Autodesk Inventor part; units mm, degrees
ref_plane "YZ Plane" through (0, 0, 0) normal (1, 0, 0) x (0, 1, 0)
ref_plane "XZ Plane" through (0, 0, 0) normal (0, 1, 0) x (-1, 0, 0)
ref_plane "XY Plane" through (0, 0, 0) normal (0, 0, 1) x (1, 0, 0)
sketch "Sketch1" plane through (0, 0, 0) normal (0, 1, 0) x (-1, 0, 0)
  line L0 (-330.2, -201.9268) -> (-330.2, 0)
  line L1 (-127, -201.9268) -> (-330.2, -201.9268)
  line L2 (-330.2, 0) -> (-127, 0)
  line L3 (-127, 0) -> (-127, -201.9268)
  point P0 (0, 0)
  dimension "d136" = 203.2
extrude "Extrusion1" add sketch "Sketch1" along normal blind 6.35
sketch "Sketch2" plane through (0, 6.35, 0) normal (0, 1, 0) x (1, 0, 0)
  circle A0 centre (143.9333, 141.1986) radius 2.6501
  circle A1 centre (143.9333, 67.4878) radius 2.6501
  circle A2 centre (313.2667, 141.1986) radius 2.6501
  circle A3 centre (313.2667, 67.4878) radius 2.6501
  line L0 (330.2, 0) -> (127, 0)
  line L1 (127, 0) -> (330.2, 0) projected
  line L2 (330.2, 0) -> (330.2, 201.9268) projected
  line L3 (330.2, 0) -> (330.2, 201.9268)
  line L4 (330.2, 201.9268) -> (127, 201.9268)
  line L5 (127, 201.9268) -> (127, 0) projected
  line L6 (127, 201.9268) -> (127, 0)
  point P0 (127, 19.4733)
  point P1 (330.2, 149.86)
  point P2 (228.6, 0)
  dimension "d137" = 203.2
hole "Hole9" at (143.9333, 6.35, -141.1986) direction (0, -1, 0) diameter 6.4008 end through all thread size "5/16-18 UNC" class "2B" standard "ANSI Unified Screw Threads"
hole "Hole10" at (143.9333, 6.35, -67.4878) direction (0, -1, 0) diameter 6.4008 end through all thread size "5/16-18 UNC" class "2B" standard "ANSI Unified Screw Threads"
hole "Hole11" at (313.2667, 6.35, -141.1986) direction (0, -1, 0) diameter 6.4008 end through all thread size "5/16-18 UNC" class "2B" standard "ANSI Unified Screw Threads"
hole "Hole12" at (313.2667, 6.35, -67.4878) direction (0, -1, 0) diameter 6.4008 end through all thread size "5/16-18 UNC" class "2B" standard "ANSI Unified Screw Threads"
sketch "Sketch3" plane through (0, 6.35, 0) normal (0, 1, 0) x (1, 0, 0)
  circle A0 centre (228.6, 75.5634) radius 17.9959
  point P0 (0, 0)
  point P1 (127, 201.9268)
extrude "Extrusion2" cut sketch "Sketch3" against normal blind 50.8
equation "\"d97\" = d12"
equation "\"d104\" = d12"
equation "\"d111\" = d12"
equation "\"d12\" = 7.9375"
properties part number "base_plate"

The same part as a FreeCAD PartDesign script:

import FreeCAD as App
import Part
import Sketcher
Q = App.Units.Quantity

doc = App.newDocument("Part")
params = doc.addObject("Spreadsheet::Sheet", "Params")
for row, (alias, value) in enumerate([
    ("sketch1_width", "8 in"),
    ("pad1_length", "0.25 in"),
    ("sketch2_diameter", "0.252 in"),
    ("hole_diameter", "0.252 in"),
    ("sketch3_diameter", "0.252 in"),
    ("hole2_diameter", "0.252 in"),
    ("sketch4_diameter", "0.252 in"),
    ("hole3_diameter", "0.252 in"),
    ("sketch5_diameter", "0.252 in"),
    ("hole4_diameter", "0.252 in"),
    ("sketch6_diameter", "1.417 in"),
    ("pocket1_length", "2 in"),
], start=1):
    params.set(f"A{row}", alias)
    params.set(f"B{row}", "=" + value)
    params.setAlias(f"B{row}", alias)

body = doc.addObject("PartDesign::Body", "Body")

# Sketch on XZ plane
sketch1 = body.newObject("Sketcher::SketchObject", "Sketch")
sketch1.AttachmentSupport = (doc.getObject("XZ_Plane"), [""])
sketch1.MapMode = "FlatFace"
sketch1.addGeometry([
    Part.LineSegment(App.Vector(330, 0, 0), App.Vector(330, -202, 0)),
    Part.LineSegment(App.Vector(330, -202, 0), App.Vector(127, -202, 0)),
    Part.LineSegment(App.Vector(127, -202, 0), App.Vector(127, 0, 0)),
    Part.LineSegment(App.Vector(127, 0, 0), App.Vector(330, 0, 0)),
], False)
sketch1.addConstraint([
    Sketcher.Constraint("Coincident", 0, 2, 1, 1),
    Sketcher.Constraint("Coincident", 1, 2, 2, 1),
    Sketcher.Constraint("Coincident", 2, 2, 3, 1),
    Sketcher.Constraint("Coincident", 3, 2, 0, 1),
    Sketcher.Constraint("Vertical", 0),
    Sketcher.Constraint("Horizontal", 1),
    Sketcher.Constraint("Vertical", 2),
    Sketcher.Constraint("Horizontal", 3),
    Sketcher.Constraint("PointOnObject", 2, 2, -1),
    Sketcher.Constraint("DistanceX", 1, 2, 1, 1, Q("8 in")),
    Sketcher.Constraint("DistanceX", -1, 1, 0, 2, Q("13 in")),
    Sketcher.Constraint("DistanceY", 0, 2, 0, 1, 201.9268),
])
sketch1.setExpression("Constraints[9]", "Params.sketch1_width")
pad1 = body.newObject("PartDesign::Pad", "Pad")
pad1.Profile = sketch1
pad1.setExpression("Length", "Params.pad1_length")
pad1.Reversed = True

# Sketch on XZ plane
sketch2 = body.newObject("Sketcher::SketchObject", "Sketch001")
sketch2.AttachmentSupport = (doc.getObject("XZ_Plane"), [""])
sketch2.MapMode = "FlatFace"
sketch2.AttachmentOffset = App.Placement(App.Vector(0, 0, -0.25 * 25.4), App.Rotation())
sketch2.addGeometry(Part.Circle(App.Vector(143.9, -141.2, 0), App.Vector(0, 0, 1), 3.2), False)
sketch2.addConstraint([
    Sketcher.Constraint("Diameter", 0, Q("0.252 in")),
    Sketcher.Constraint("DistanceY", 0, 3, -1, 1, Q("5.559 in")),
    Sketcher.Constraint("DistanceX", -1, 1, 0, 3, 143.9333),
])
sketch2.setExpression("Constraints[0]", "Params.sketch2_diameter")
doc.recompute()
hole = body.newObject("PartDesign::Hole", "Hole")
hole.Profile = sketch2
hole.ThreadType = "None"
hole.setExpression("Diameter", "Params.hole_diameter")
hole.DepthType = "ThroughAll"
hole.Reversed = True

# Sketch on XZ plane
sketch3 = body.newObject("Sketcher::SketchObject", "Sketch002")
sketch3.AttachmentSupport = (doc.getObject("XZ_Plane"), [""])
sketch3.MapMode = "FlatFace"
sketch3.AttachmentOffset = App.Placement(App.Vector(0, 0, -0.25 * 25.4), App.Rotation())
sketch3.addGeometry(Part.Circle(App.Vector(143.9, -67.5, 0), App.Vector(0, 0, 1), 3.2), False)
sketch3.addConstraint([
    Sketcher.Constraint("Diameter", 0, Q("0.252 in")),
    Sketcher.Constraint("DistanceY", 0, 3, -1, 1, Q("2.657 in")),
    Sketcher.Constraint("DistanceX", -1, 1, 0, 3, 143.9333),
])
sketch3.setExpression("Constraints[0]", "Params.sketch3_diameter")
doc.recompute()
hole2 = body.newObject("PartDesign::Hole", "Hole001")
hole2.Profile = sketch3
hole2.ThreadType = "None"
hole2.setExpression("Diameter", "Params.hole2_diameter")
hole2.DepthType = "ThroughAll"
hole2.Reversed = True

# Sketch on XZ plane
sketch4 = body.newObject("Sketcher::SketchObject", "Sketch003")
sketch4.AttachmentSupport = (doc.getObject("XZ_Plane"), [""])
sketch4.MapMode = "FlatFace"
sketch4.AttachmentOffset = App.Placement(App.Vector(0, 0, -0.25 * 25.4), App.Rotation())
sketch4.addGeometry(Part.Circle(App.Vector(313.3, -141.2, 0), App.Vector(0, 0, 1), 3.2), False)
sketch4.addConstraint([
    Sketcher.Constraint("Diameter", 0, Q("0.252 in")),
    Sketcher.Constraint("DistanceY", 0, 3, -1, 1, Q("5.559 in")),
    Sketcher.Constraint("DistanceX", -1, 1, 0, 3, 313.2667),
])
sketch4.setExpression("Constraints[0]", "Params.sketch4_diameter")
doc.recompute()
hole3 = body.newObject("PartDesign::Hole", "Hole002")
hole3.Profile = sketch4
hole3.ThreadType = "None"
hole3.setExpression("Diameter", "Params.hole3_diameter")
hole3.DepthType = "ThroughAll"
hole3.Reversed = True

# Sketch on XZ plane
sketch5 = body.newObject("Sketcher::SketchObject", "Sketch004")
sketch5.AttachmentSupport = (doc.getObject("XZ_Plane"), [""])
sketch5.MapMode = "FlatFace"
sketch5.AttachmentOffset = App.Placement(App.Vector(0, 0, -0.25 * 25.4), App.Rotation())
sketch5.addGeometry(Part.Circle(App.Vector(313.3, -67.5, 0), App.Vector(0, 0, 1), 3.2), False)
sketch5.addConstraint([
    Sketcher.Constraint("Diameter", 0, Q("0.252 in")),
    Sketcher.Constraint("DistanceY", 0, 3, -1, 1, Q("2.657 in")),
    Sketcher.Constraint("DistanceX", -1, 1, 0, 3, 313.2667),
])
sketch5.setExpression("Constraints[0]", "Params.sketch5_diameter")
doc.recompute()
hole4 = body.newObject("PartDesign::Hole", "Hole003")
hole4.Profile = sketch5
hole4.ThreadType = "None"
hole4.setExpression("Diameter", "Params.hole4_diameter")
hole4.DepthType = "ThroughAll"
hole4.Reversed = True

# Sketch on XZ plane
sketch6 = body.newObject("Sketcher::SketchObject", "Sketch005")
sketch6.AttachmentSupport = (doc.getObject("XZ_Plane"), [""])
sketch6.MapMode = "FlatFace"
sketch6.AttachmentOffset = App.Placement(App.Vector(0, 0, -0.25 * 25.4), App.Rotation())
sketch6.addGeometry(Part.Circle(App.Vector(229, -76, 0), App.Vector(0, 0, 1), 18), False)
sketch6.addConstraint([
    Sketcher.Constraint("Diameter", 0, Q("1.417 in")),
    Sketcher.Constraint("DistanceX", -1, 1, 0, 3, Q("9 in")),
    Sketcher.Constraint("DistanceY", 0, 3, -1, 1, 75.5634),
])
sketch6.setExpression("Constraints[0]", "Params.sketch6_diameter")
pocket1 = body.newObject("PartDesign::Pocket", "Pocket")
pocket1.Profile = sketch6
pocket1.setExpression("Length", "Params.pocket1_length")
pocket1.Reversed = True

doc.recompute()
